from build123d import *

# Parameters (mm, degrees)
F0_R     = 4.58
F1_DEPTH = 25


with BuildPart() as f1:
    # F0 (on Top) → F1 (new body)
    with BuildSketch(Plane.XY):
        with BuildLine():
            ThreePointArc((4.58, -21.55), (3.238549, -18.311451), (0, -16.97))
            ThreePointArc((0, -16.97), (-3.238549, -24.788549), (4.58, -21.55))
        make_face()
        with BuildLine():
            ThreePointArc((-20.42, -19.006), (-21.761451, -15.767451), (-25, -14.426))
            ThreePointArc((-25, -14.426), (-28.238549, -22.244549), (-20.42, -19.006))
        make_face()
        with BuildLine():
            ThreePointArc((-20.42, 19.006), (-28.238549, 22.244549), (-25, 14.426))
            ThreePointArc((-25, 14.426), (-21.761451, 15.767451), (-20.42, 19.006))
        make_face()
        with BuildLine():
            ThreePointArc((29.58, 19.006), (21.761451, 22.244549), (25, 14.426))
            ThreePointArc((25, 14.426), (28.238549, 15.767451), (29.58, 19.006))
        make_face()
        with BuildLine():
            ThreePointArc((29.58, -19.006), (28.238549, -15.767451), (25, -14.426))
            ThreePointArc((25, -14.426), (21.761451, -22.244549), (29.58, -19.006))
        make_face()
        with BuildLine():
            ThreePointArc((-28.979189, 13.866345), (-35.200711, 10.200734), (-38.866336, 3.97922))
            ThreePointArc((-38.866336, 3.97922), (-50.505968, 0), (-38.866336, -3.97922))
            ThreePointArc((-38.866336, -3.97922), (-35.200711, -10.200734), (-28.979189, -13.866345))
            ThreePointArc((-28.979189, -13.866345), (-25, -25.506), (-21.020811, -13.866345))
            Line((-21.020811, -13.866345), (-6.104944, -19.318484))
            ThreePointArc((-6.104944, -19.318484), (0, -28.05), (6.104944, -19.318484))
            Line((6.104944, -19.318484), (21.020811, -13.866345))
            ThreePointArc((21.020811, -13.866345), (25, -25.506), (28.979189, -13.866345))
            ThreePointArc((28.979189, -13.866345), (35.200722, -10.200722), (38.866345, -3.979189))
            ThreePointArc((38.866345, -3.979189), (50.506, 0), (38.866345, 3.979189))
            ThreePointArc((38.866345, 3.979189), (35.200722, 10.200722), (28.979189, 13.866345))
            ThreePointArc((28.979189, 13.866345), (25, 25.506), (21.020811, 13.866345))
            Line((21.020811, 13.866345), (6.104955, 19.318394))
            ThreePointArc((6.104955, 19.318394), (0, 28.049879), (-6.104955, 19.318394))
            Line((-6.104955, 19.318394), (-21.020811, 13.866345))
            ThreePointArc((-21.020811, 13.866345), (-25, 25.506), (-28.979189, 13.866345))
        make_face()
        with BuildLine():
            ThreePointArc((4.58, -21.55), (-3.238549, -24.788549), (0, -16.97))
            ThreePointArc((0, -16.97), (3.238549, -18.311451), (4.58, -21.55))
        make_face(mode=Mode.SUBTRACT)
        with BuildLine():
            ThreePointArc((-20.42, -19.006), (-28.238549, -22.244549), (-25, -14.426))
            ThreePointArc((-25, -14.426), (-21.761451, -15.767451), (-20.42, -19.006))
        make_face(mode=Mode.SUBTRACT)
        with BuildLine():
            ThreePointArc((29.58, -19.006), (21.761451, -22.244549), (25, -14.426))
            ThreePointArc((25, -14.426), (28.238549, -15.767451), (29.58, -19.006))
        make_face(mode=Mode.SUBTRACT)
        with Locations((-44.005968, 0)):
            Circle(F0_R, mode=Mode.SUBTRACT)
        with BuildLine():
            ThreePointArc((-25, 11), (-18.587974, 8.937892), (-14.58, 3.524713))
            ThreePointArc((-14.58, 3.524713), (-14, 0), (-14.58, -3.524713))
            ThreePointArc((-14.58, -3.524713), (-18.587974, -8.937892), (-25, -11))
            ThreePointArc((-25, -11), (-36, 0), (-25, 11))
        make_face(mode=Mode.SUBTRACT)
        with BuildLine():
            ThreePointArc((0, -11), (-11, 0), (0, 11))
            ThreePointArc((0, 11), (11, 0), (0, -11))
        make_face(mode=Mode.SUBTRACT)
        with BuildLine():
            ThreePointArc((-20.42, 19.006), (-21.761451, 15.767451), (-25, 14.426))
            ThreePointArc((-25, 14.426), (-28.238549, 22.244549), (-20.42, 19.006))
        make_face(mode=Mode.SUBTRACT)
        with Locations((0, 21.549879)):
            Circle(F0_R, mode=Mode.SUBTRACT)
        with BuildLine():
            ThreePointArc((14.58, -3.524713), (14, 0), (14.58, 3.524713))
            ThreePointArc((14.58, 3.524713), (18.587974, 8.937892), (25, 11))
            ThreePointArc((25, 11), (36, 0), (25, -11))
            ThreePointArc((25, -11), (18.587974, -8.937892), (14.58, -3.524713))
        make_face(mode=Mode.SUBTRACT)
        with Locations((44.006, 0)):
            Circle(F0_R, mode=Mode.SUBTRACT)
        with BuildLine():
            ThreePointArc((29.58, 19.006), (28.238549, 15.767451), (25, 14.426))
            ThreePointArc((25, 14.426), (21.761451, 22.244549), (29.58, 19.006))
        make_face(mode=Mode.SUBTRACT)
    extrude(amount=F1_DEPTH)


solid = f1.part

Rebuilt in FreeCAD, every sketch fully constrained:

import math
import FreeCAD as App
import Part
import Sketcher

doc = App.newDocument("Part")
body = doc.addObject("PartDesign::Body", "Body")

sketch1 = doc.addObject("Sketcher::SketchObject", "Sketch")
body.addObject(sketch1)
sketch1.AttachmentSupport = (doc.XY_Plane, [""])
sketch1.MapMode = "FlatFace"
sketch1.addGeometry(Part.ArcOfCircle(Part.Circle(App.Vector(-25, 0, 0), App.Vector(0, 0, 1), 14.4), math.radians(106), math.radians(164)), False)
sketch1.addGeometry(Part.ArcOfCircle(Part.Circle(App.Vector(-44, 0, 0), App.Vector(0, 0, 1), 6.5), math.radians(38), math.radians(322)), False)
sketch1.addGeometry(Part.ArcOfCircle(Part.Circle(App.Vector(-25, 0, 0), App.Vector(0, 0, 1), 14.4), math.radians(-164), math.radians(-106)), False)
sketch1.addGeometry(Part.ArcOfCircle(Part.Circle(App.Vector(-25, -19, 0), App.Vector(0, 0, 1), 6.5), math.radians(128), math.radians(412)), False)
sketch1.addGeometry(Part.LineSegment(App.Vector(-21, -13.9, 0), App.Vector(-6.1, -19.3, 0)), False)
sketch1.addGeometry(Part.ArcOfCircle(Part.Circle(App.Vector(0, -21.5, 0), App.Vector(0, 0, 1), 6.5), math.radians(160), math.radians(380)), False)
sketch1.addGeometry(Part.LineSegment(App.Vector(6.1, -19.3, 0), App.Vector(21, -13.9, 0)), False)
sketch1.addGeometry(Part.ArcOfCircle(Part.Circle(App.Vector(25, -19, 0), App.Vector(0, 0, 1), 6.5), math.radians(128), math.radians(412)), False)
sketch1.addGeometry(Part.ArcOfCircle(Part.Circle(App.Vector(25, 0, 0), App.Vector(0, 0, 1), 14.4), math.radians(-74), math.radians(-16)), False)
sketch1.addGeometry(Part.ArcOfCircle(Part.Circle(App.Vector(44, 0, 0), App.Vector(0, 0, 1), 6.5), math.radians(-142), math.radians(142)), False)
sketch1.addGeometry(Part.ArcOfCircle(Part.Circle(App.Vector(25, 0, 0), App.Vector(0, 0, 1), 14.4), math.radians(16), math.radians(74)), False)
sketch1.addGeometry(Part.ArcOfCircle(Part.Circle(App.Vector(25, 19, 0), App.Vector(0, 0, 1), 6.5), math.radians(-52), math.radians(232)), False)
sketch1.addGeometry(Part.LineSegment(App.Vector(21, 13.9, 0), App.Vector(6.1, 19.3, 0)), False)
sketch1.addGeometry(Part.ArcOfCircle(Part.Circle(App.Vector(0, 21.5, 0), App.Vector(0, 0, 1), 6.5), math.radians(-20), math.radians(200)), False)
sketch1.addGeometry(Part.LineSegment(App.Vector(-6.1, 19.3, 0), App.Vector(-21, 13.9, 0)), False)
sketch1.addGeometry(Part.ArcOfCircle(Part.Circle(App.Vector(-25, 19, 0), App.Vector(0, 0, 1), 6.5), math.radians(-52), math.radians(232)), False)
sketch1.addGeometry(Part.ArcOfCircle(Part.Circle(App.Vector(-25, -19, 0), App.Vector(0, 0, 1), 4.6), math.radians(0), math.radians(90)), False)
sketch1.addGeometry(Part.ArcOfCircle(Part.Circle(App.Vector(-25, -19, 0), App.Vector(0, 0, 1), 4.6), math.radians(90), math.radians(360)), False)
sketch1.addGeometry(Part.ArcOfCircle(Part.Circle(App.Vector(0, -21.6, 0), App.Vector(0, 0, 1), 4.6), math.radians(0), math.radians(90)), False)
sketch1.addGeometry(Part.ArcOfCircle(Part.Circle(App.Vector(0, -21.5, 0), App.Vector(0, 0, 1), 4.6), math.radians(90), math.radians(360)), False)
sketch1.addGeometry(Part.ArcOfCircle(Part.Circle(App.Vector(25, -19, 0), App.Vector(0, 0, 1), 4.6), math.radians(0), math.radians(90)), False)
sketch1.addGeometry(Part.ArcOfCircle(Part.Circle(App.Vector(25, -19, 0), App.Vector(0, 0, 1), 4.6), math.radians(90), math.radians(360)), False)
sketch1.addGeometry(Part.Circle(App.Vector(-44, 0, 0), App.Vector(0, 0, 1), 4.6), False)
sketch1.addGeometry(Part.ArcOfCircle(Part.Circle(App.Vector(-25, 0, 0), App.Vector(0, 0, 1), 11), math.radians(90), math.radians(270)), False)
sketch1.addGeometry(Part.ArcOfCircle(Part.Circle(App.Vector(-25, 0, 0), App.Vector(0, 0, 1), 11), math.radians(19), math.radians(90)), False)
sketch1.addGeometry(Part.ArcOfCircle(Part.Circle(App.Vector(-25, 0, 0), App.Vector(0, 0, 1), 11), math.radians(-19), math.radians(19)), False)
sketch1.addGeometry(Part.ArcOfCircle(Part.Circle(App.Vector(-25, 0, 0), App.Vector(0, 0, 1), 11), math.radians(-90), math.radians(-19)), False)
sketch1.addGeometry(Part.Circle(App.Vector(0, 0, 0), App.Vector(0, 0, 1), 11), False)
sketch1.addGeometry(Part.ArcOfCircle(Part.Circle(App.Vector(-25, 19, 0), App.Vector(0, 0, 1), 4.6), math.radians(0), math.radians(270)), False)
sketch1.addGeometry(Part.ArcOfCircle(Part.Circle(App.Vector(-25, 19, 0), App.Vector(0, 0, 1), 4.6), math.radians(-90), math.radians(0)), False)
sketch1.addGeometry(Part.Circle(App.Vector(0, 21.5, 0), App.Vector(0, 0, 1), 4.6), False)
sketch1.addGeometry(Part.ArcOfCircle(Part.Circle(App.Vector(25, 0, 0), App.Vector(0, 0, 1), 11), math.radians(-161), math.radians(-90)), False)
sketch1.addGeometry(Part.ArcOfCircle(Part.Circle(App.Vector(25, 0, 0), App.Vector(0, 0, 1), 11), math.radians(161), math.radians(199)), False)
sketch1.addGeometry(Part.ArcOfCircle(Part.Circle(App.Vector(25, 0, 0), App.Vector(0, 0, 1), 11), math.radians(90), math.radians(161)), False)
sketch1.addGeometry(Part.ArcOfCircle(Part.Circle(App.Vector(25, 0, 0), App.Vector(0, 0, 1), 11), math.radians(-90), math.radians(90)), False)
sketch1.addGeometry(Part.Circle(App.Vector(44, 0, 0), App.Vector(0, 0, 1), 4.6), False)
sketch1.addGeometry(Part.ArcOfCircle(Part.Circle(App.Vector(25, 19, 0), App.Vector(0, 0, 1), 4.6), math.radians(0), math.radians(270)), False)
sketch1.addGeometry(Part.ArcOfCircle(Part.Circle(App.Vector(25, 19, 0), App.Vector(0, 0, 1), 4.6), math.radians(-90), math.radians(0)), False)
sketch1.addConstraint(Sketcher.Constraint("Coincident", 0, 2, 1, 1))
sketch1.addConstraint(Sketcher.Constraint("Coincident", 1, 2, 2, 1))
sketch1.addConstraint(Sketcher.Constraint("Coincident", 2, 2, 3, 1))
sketch1.addConstraint(Sketcher.Constraint("Coincident", 3, 2, 4, 1))
sketch1.addConstraint(Sketcher.Constraint("Coincident", 4, 2, 5, 1))
sketch1.addConstraint(Sketcher.Constraint("Coincident", 5, 2, 6, 1))
sketch1.addConstraint(Sketcher.Constraint("Coincident", 6, 2, 7, 1))
sketch1.addConstraint(Sketcher.Constraint("Coincident", 7, 2, 8, 1))
sketch1.addConstraint(Sketcher.Constraint("Coincident", 8, 2, 9, 1))
sketch1.addConstraint(Sketcher.Constraint("Coincident", 9, 2, 10, 1))
sketch1.addConstraint(Sketcher.Constraint("Coincident", 10, 2, 11, 1))
sketch1.addConstraint(Sketcher.Constraint("Coincident", 11, 2, 12, 1))
sketch1.addConstraint(Sketcher.Constraint("Coincident", 12, 2, 13, 1))
sketch1.addConstraint(Sketcher.Constraint("Coincident", 13, 2, 14, 1))
sketch1.addConstraint(Sketcher.Constraint("Coincident", 14, 2, 15, 1))
sketch1.addConstraint(Sketcher.Constraint("Coincident", 15, 2, 0, 1))
sketch1.addConstraint(Sketcher.Constraint("Tangent", 16, 1, 17, 2))
sketch1.addConstraint(Sketcher.Constraint("Coincident", 17, 1, 16, 2))
sketch1.addConstraint(Sketcher.Constraint("Tangent", 18, 1, 19, 2))
sketch1.addConstraint(Sketcher.Constraint("Coincident", 19, 1, 18, 2))
sketch1.addConstraint(Sketcher.Constraint("Tangent", 20, 1, 21, 2))
sketch1.addConstraint(Sketcher.Constraint("Coincident", 21, 1, 20, 2))
sketch1.addConstraint(Sketcher.Constraint("Tangent", 23, 1, 24, 2))
sketch1.addConstraint(Sketcher.Constraint("Tangent", 24, 1, 25, 2))
sketch1.addConstraint(Sketcher.Constraint("Tangent", 25, 1, 26, 2))
sketch1.addConstraint(Sketcher.Constraint("Tangent", 26, 1, 23, 2))
sketch1.addConstraint(Sketcher.Constraint("Tangent", 28, 1, 29, 2))
sketch1.addConstraint(Sketcher.Constraint("Coincident", 29, 1, 28, 2))
sketch1.addConstraint(Sketcher.Constraint("Tangent", 31, 1, 32, 2))
sketch1.addConstraint(Sketcher.Constraint("Tangent", 32, 1, 33, 2))
sketch1.addConstraint(Sketcher.Constraint("Tangent", 33, 1, 34, 2))
sketch1.addConstraint(Sketcher.Constraint("Tangent", 34, 1, 31, 2))
sketch1.addConstraint(Sketcher.Constraint("Tangent", 36, 1, 37, 2))
sketch1.addConstraint(Sketcher.Constraint("Coincident", 37, 1, 36, 2))
sketch1.addConstraint(Sketcher.Constraint("Coincident", 27, 3, -1, 1))
sketch1.addConstraint(Sketcher.Constraint("Coincident", 2, 3, 0, 3))
sketch1.addConstraint(Sketcher.Constraint("Coincident", 10, 3, 8, 3))
sketch1.addConstraint(Sketcher.Constraint("Coincident", 16, 3, 3, 3))
sketch1.addConstraint(Sketcher.Constraint("Coincident", 18, 3, 5, 3))
sketch1.addConstraint(Sketcher.Constraint("Coincident", 20, 3, 7, 3))
sketch1.addConstraint(Sketcher.Constraint("Coincident", 22, 3, 1, 3))
sketch1.addConstraint(Sketcher.Constraint("Coincident", 23, 3, 0, 3))
sketch1.addConstraint(Sketcher.Constraint("Coincident", 28, 3, 15, 3))
sketch1.addConstraint(Sketcher.Constraint("Coincident", 30, 3, 13, 3))
sketch1.addConstraint(Sketcher.Constraint("Coincident", 31, 3, 8, 3))
sketch1.addConstraint(Sketcher.Constraint("Coincident", 35, 3, 9, 3))
sketch1.addConstraint(Sketcher.Constraint("Coincident", 36, 3, 11, 3))
sketch1.addConstraint(Sketcher.Constraint("Equal", 0, 2))
sketch1.addConstraint(Sketcher.Constraint("Equal", 1, 3))
sketch1.addConstraint(Sketcher.Constraint("Equal", 3, 5))
sketch1.addConstraint(Sketcher.Constraint("Equal", 5, 7))
sketch1.addConstraint(Sketcher.Constraint("Equal", 7, 9))
sketch1.addConstraint(Sketcher.Constraint("Equal", 8, 10))
sketch1.addConstraint(Sketcher.Constraint("Equal", 9, 11))
sketch1.addConstraint(Sketcher.Constraint("Equal", 11, 13))
sketch1.addConstraint(Sketcher.Constraint("Equal", 13, 15))
sketch1.addConstraint(Sketcher.Constraint("Equal", 17, 18))
sketch1.addConstraint(Sketcher.Constraint("Equal", 19, 20))
sketch1.addConstraint(Sketcher.Constraint("Equal", 21, 22))
sketch1.addConstraint(Sketcher.Constraint("Equal", 24, 25))
sketch1.addConstraint(Sketcher.Constraint("Equal", 25, 27))
sketch1.addConstraint(Sketcher.Constraint("Equal", 22, 28))
sketch1.addConstraint(Sketcher.Constraint("Equal", 29, 30))
sketch1.addConstraint(Sketcher.Constraint("Equal", 26, 31))
sketch1.addConstraint(Sketcher.Constraint("Equal", 31, 32))
sketch1.addConstraint(Sketcher.Constraint("Equal", 30, 35))
sketch1.addConstraint(Sketcher.Constraint("Equal", 35, 36))
sketch1.addConstraint(Sketcher.Constraint("Symmetric", 0, 3, 8, 3, -1, 1))
sketch1.addConstraint(Sketcher.Constraint("Symmetric", 3, 3, 11, 3, -1, 1))
sketch1.addConstraint(Sketcher.Constraint("Symmetric", 7, 3, 15, 3, -1, 1))
sketch1.addConstraint(Sketcher.Constraint("Symmetric", 3, 3, 7, 3, -2))
sketch1.addConstraint(Sketcher.Constraint("Symmetric", 4, 2, 5, 2, -2))
sketch1.addConstraint(Sketcher.Constraint("Symmetric", 12, 2, 13, 2, -2))
sketch1.addConstraint(Sketcher.Constraint("Symmetric", 25, 1, 31, 1, -2))
sketch1.addConstraint(Sketcher.Constraint("PointOnObject", 1, 3, -1))
sketch1.addConstraint(Sketcher.Constraint("PointOnObject", 9, 3, -1))
sketch1.addConstraint(Sketcher.Constraint("PointOnObject", 19, 1, -2))
sketch1.addConstraint(Sketcher.Constraint("Horizontal", 2, 2, 3, 2))
sketch1.addConstraint(Sketcher.Constraint("Horizontal", 3, 2, 6, 2))
sketch1.addConstraint(Sketcher.Constraint("Horizontal", 6, 2, 7, 2))
sketch1.addConstraint(Sketcher.Constraint("Horizontal", 10, 2, 11, 2))
sketch1.addConstraint(Sketcher.Constraint("Horizontal", 11, 2, 14, 2))
sketch1.addConstraint(Sketcher.Constraint("Horizontal", 21, 3, 16, 1))
sketch1.addConstraint(Sketcher.Constraint("Horizontal", 19, 3, 18, 1))
sketch1.addConstraint(Sketcher.Constraint("Horizontal", 16, 1, 20, 1))
sketch1.addConstraint(Sketcher.Constraint("Horizontal", 37, 3, 28, 1))
sketch1.addConstraint(Sketcher.Constraint("Horizontal", 24, 1, 32, 1))
sketch1.addConstraint(Sketcher.Constraint("Horizontal", 28, 1, 36, 1))
sketch1.addConstraint(Sketcher.Constraint("Vertical", 7, 3, 8, 3))
sketch1.addConstraint(Sketcher.Constraint("Vertical", 29, 3, 17, 1))
sketch1.addConstraint(Sketcher.Constraint("Vertical", 37, 3, 21, 1))
sketch1.addConstraint(Sketcher.Constraint("Vertical", 17, 1, 23, 1))
sketch1.addConstraint(Sketcher.Constraint("Vertical", 24, 1, 25, 1))
sketch1.addConstraint(Sketcher.Constraint("Vertical", 23, 1, 26, 1))
sketch1.addConstraint(Sketcher.Constraint("Vertical", 26, 1, 29, 1))
sketch1.addConstraint(Sketcher.Constraint("Vertical", 21, 1, 33, 1))
sketch1.addConstraint(Sketcher.Constraint("Vertical", 33, 1, 34, 1))
sketch1.addConstraint(Sketcher.Constraint("Vertical", 34, 1, 37, 1))
sketch1.addConstraint(Sketcher.Constraint("Diameter", 27, 22.0))
sketch1.addConstraint(Sketcher.Constraint("Radius", 1, 6.5))
sketch1.addConstraint(Sketcher.Constraint("Diameter", 22, 9.16))
sketch1.addConstraint(Sketcher.Constraint("DistanceX", 3, 3, -1, 1, 25.0))
sketch1.addConstraint(Sketcher.Constraint("DistanceY", 5, 3, -1, 1, 21.55))
sketch1.addConstraint(Sketcher.Constraint("DistanceX", 24, 1, -1, 1, 14.58))
sketch1.addConstraint(Sketcher.Constraint("DistanceY", 3, 3, -1, 1, 19.006))
sketch1.addConstraint(Sketcher.Constraint("DistanceX", -1, 1, 9, 3, 44.006))
sketch1.addConstraint(Sketcher.Constraint("Radius", 0, 14.425997))
sketch1.addConstraint(Sketcher.Constraint("DistanceY", -1, 1, 13, 3, 21.549879))
sketch1.addConstraint(Sketcher.Constraint("DistanceX", 22, 3, -1, 1, 44.005968))
sketch1.addConstraint(Sketcher.Constraint("DistanceX", 4, 2, -1, 1, 6.104944))
sketch1.addConstraint(Sketcher.Constraint("DistanceX", -1, 1, 12, 2, 6.104955))
pad1 = doc.addObject("PartDesign::Pad", "Pad")
body.addObject(pad1)
pad1.Profile = sketch1
pad1.Length = 25

doc.recompute()
